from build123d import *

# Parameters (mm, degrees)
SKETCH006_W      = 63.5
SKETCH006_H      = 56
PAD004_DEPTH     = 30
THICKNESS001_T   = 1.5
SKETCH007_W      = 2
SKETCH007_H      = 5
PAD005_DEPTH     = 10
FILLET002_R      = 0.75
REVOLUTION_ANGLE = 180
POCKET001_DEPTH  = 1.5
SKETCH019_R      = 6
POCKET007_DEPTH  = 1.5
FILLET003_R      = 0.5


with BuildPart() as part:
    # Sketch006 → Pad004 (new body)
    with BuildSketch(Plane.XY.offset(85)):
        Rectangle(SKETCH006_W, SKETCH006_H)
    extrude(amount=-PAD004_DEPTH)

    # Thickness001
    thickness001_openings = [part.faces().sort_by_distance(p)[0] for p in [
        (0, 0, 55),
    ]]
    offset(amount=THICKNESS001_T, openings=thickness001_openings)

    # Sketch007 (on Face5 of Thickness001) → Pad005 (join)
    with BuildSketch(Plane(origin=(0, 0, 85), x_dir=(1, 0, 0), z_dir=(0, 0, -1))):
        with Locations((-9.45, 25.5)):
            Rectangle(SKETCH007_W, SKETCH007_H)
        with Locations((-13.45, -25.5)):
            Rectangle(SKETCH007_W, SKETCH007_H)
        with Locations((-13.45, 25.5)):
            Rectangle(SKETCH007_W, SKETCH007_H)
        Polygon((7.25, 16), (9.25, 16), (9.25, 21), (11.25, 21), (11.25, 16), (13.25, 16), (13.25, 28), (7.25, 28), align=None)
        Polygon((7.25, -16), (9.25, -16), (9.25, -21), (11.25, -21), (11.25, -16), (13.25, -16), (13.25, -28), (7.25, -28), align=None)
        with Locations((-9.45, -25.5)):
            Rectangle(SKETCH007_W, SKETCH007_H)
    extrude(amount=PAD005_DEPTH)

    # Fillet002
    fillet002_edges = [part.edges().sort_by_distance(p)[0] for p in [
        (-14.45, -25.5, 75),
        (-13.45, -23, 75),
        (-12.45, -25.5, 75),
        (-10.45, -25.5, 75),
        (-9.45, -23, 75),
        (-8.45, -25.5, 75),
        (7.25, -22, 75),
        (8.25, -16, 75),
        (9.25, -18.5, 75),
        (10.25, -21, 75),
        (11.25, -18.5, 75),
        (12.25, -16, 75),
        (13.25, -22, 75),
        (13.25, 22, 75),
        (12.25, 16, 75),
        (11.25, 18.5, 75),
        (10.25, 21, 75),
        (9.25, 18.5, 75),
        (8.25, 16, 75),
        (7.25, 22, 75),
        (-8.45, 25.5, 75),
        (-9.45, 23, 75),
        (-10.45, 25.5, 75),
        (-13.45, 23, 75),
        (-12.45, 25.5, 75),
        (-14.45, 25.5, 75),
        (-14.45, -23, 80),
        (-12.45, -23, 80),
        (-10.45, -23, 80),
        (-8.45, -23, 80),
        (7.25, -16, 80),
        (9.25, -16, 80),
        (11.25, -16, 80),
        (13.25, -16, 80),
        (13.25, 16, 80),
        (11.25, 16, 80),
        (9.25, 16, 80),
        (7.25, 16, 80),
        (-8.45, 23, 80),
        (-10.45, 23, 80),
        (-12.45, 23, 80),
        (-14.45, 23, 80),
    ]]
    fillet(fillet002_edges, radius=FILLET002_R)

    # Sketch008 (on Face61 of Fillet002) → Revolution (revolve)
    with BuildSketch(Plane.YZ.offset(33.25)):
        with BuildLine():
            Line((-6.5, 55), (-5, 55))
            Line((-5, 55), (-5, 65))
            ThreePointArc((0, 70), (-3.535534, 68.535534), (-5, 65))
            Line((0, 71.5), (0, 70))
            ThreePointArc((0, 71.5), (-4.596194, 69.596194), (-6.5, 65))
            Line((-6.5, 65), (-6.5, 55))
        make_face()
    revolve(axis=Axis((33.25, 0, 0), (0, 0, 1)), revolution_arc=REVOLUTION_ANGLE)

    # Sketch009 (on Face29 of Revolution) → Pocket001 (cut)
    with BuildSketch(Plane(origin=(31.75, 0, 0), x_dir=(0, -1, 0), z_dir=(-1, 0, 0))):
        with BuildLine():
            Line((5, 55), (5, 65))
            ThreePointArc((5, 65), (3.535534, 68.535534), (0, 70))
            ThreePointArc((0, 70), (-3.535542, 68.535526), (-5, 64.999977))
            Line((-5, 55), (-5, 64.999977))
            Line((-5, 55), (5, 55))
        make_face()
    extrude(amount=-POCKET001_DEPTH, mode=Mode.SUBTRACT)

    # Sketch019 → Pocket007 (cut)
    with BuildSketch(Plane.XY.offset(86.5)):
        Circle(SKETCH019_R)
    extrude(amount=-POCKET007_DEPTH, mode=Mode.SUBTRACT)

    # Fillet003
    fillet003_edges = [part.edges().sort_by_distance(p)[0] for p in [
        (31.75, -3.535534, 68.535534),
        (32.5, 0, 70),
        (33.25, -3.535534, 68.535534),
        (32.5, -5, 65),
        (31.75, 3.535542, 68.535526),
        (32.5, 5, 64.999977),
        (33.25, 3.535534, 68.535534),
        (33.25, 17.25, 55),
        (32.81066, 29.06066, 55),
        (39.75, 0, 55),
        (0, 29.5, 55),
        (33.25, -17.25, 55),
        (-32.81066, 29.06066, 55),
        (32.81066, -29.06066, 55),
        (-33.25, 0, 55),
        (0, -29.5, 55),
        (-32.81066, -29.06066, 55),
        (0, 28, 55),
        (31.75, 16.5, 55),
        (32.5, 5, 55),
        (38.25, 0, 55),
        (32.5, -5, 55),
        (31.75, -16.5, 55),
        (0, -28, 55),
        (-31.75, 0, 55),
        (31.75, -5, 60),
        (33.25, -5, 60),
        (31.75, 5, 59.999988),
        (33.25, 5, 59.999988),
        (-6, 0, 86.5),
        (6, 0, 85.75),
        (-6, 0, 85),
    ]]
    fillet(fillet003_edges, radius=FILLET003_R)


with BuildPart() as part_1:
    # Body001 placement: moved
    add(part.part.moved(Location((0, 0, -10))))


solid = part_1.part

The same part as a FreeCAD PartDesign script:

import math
import FreeCAD as App
import Part
import Sketcher


def edges_at(feature, points):
    """Names of the edges that pass closest to the given points."""
    edges = feature.Shape.Edges
    near = lambda p: min(range(len(edges)), key=lambda i: edges[i].distToShape(Part.Vertex(*p))[0])
    return sorted({f"Edge{near(p) + 1}" for p in points})


def faces_at(feature, points):
    """Names of the faces that lie closest to the given points."""
    faces = feature.Shape.Faces
    near = lambda p: min(range(len(faces)), key=lambda i: faces[i].distToShape(Part.Vertex(*p))[0])
    return sorted({f"Face{near(p) + 1}" for p in points})


def add_polygon(sketch, points):
    """Adds a closed chain of lines whose ends are joined by coincident constraints."""
    first, n = sketch.GeometryCount, len(points)
    for a, b in zip(points, points[1:] + points[:1]):
        sketch.addGeometry(Part.LineSegment(App.Vector(*a, 0), App.Vector(*b, 0)), False)
    for i in range(n):
        sketch.addConstraint(Sketcher.Constraint("Coincident", first + i, 2, first + (i + 1) % n, 1))

doc = App.newDocument("Part")
body = doc.addObject("PartDesign::Body", "Body")

sketch1 = body.newObject("Sketcher::SketchObject", "Sketch")
sketch1.AttachmentSupport = (doc.getObject("XY_Plane"), [""])
sketch1.MapMode = "FlatFace"
sketch1.AttachmentOffset = App.Placement(App.Vector(0, 0, 85), App.Rotation())
add_polygon(sketch1, [(-31.75, 28), (-31.75, -28), (31.75, -28), (31.75, 28)])
sketch1.addConstraint([
    Sketcher.Constraint("Vertical", 0),
    Sketcher.Constraint("Horizontal", 1),
    Sketcher.Constraint("Vertical", 2),
    Sketcher.Constraint("Horizontal", 3),
    Sketcher.Constraint("Symmetric", 0, 2, 2, 2, -1, 1),
    Sketcher.Constraint("DistanceY", 0, 2, 0, 1, 56.0),
    Sketcher.Constraint("DistanceX", 1, 1, 1, 2, 63.5),
])
pad1 = body.newObject("PartDesign::Pad", "Pad")
pad1.Profile = sketch1
pad1.Length = 30
pad1.Reversed = True
doc.recompute()

thickness = body.newObject("PartDesign::Thickness", "Thickness")
thickness.Base = (pad1, faces_at(pad1, [(0, 0, 55)]))
thickness.Value = 1.5
thickness.Reversed = False
thickness.Join = "Arc"

sketch2 = body.newObject("Sketcher::SketchObject", "Sketch001")
sketch2.AttachmentSupport = (doc.getObject("XY_Plane"), [""])
sketch2.MapMode = "FlatFace"
sketch2.AttachmentOffset = App.Placement(App.Vector(0, 0, 85), App.Rotation())
add_polygon(sketch2, [(-10.45, -28), (-10.45, -23), (-8.45, -23), (-8.45, -28)])
add_polygon(sketch2, [(-14.45, 23), (-14.45, 28), (-12.45, 28), (-12.45, 23)])
add_polygon(sketch2, [(-14.45, -28), (-14.45, -23), (-12.45, -23), (-12.45, -28)])
add_polygon(sketch2, [(7.25, -16), (9.25, -16), (9.25, -21), (11.25, -21), (11.25, -16), (13.25, -16), (13.25, -28), (7.25, -28)])
add_polygon(sketch2, [(9.25, 16), (7.25, 16), (7.25, 28), (13.25, 28), (13.25, 16), (11.25, 16), (11.25, 21), (9.25, 21)])
add_polygon(sketch2, [(-10.45, 23), (-10.45, 28), (-8.45, 28), (-8.45, 23)])
sketch2.addConstraint([
    Sketcher.Constraint("Vertical", 0),
    Sketcher.Constraint("Horizontal", 1),
    Sketcher.Constraint("Vertical", 2),
    Sketcher.Constraint("Horizontal", 3),
    Sketcher.Constraint("Vertical", 4),
    Sketcher.Constraint("Horizontal", 5),
    Sketcher.Constraint("Vertical", 6),
    Sketcher.Constraint("Horizontal", 7),
    Sketcher.Constraint("Vertical", 8),
    Sketcher.Constraint("Horizontal", 9),
    Sketcher.Constraint("Vertical", 10),
    Sketcher.Constraint("Horizontal", 11),
    Sketcher.Constraint("Horizontal", 12),
    Sketcher.Constraint("Vertical", 13),
    Sketcher.Constraint("Horizontal", 14),
    Sketcher.Constraint("Vertical", 15),
    Sketcher.Constraint("Horizontal", 16),
    Sketcher.Constraint("Vertical", 17),
    Sketcher.Constraint("Horizontal", 18),
    Sketcher.Constraint("Vertical", 19),
    Sketcher.Constraint("Horizontal", 20),
    Sketcher.Constraint("Vertical", 21),
    Sketcher.Constraint("Horizontal", 22),
    Sketcher.Constraint("Vertical", 23),
    Sketcher.Constraint("Horizontal", 24),
    Sketcher.Constraint("Vertical", 25),
    Sketcher.Constraint("Horizontal", 26),
    Sketcher.Constraint("Vertical", 27),
    Sketcher.Constraint("Vertical", 28),
    Sketcher.Constraint("Horizontal", 29),
    Sketcher.Constraint("Vertical", 30),
    Sketcher.Constraint("Horizontal", 31),
    Sketcher.Constraint("Symmetric", 7, 2, 8, 2, -1),
    Sketcher.Constraint("Symmetric", 5, 2, 10, 2, -1),
    Sketcher.Constraint("Symmetric", 19, 2, 20, 2, -1),
    Sketcher.Constraint("Symmetric", 17, 2, 22, 2, -1),
    Sketcher.Constraint("Symmetric", 15, 2, 24, 2, -1),
    Sketcher.Constraint("Symmetric", 13, 2, 26, 2, -1),
    Sketcher.Constraint("Symmetric", 3, 2, 28, 2, -1),
    Sketcher.Constraint("Symmetric", 1, 2, 30, 2, -1),
    Sketcher.Constraint("Horizontal", 1, 2, 8, 2),
    Sketcher.Constraint("Horizontal", 3, 2, 10, 2),
    Sketcher.Constraint("Horizontal", 12, 2, 15, 2),
    Sketcher.Constraint("Horizontal", 11, 2, 17, 2),
    Sketcher.Constraint("Equal", 3, 5),
    Sketcher.Constraint("Equal", 11, 12),
    Sketcher.Constraint("Equal", 12, 14),
    Sketcher.Constraint("Equal", 14, 16),
    Sketcher.Constraint("Equal", 10, 13),
    Sketcher.Constraint("DistanceX", 1, 1, 1, 2, 2.0),
    Sketcher.Constraint("DistanceY", 0, 1, 0, 2, 5.0),
    Sketcher.Constraint("DistanceY", 17, 2, 17, 1, 12.0),
    Sketcher.Constraint("DistanceY", 0, 2, -1, 1, 23.0),
    Sketcher.Constraint("DistanceX", 4, 2, 0, 2, 4.0),
    Sketcher.Constraint("DistanceX", 1, 2, 12, 2, 17.7),
    Sketcher.Constraint("DistanceX", 0, 2, -1, 1, 10.45),
])
pad2 = body.newObject("PartDesign::Pad", "Pad001")
pad2.Profile = sketch2
pad2.Length = 10
pad2.Reversed = True
doc.recompute()

fillet = body.newObject("PartDesign::Fillet", "Fillet")
fillet.Base = (pad2, edges_at(pad2, [
    (-14.45, -25.5, 75),
    (-13.45, -23, 75),
    (-12.45, -25.5, 75),
    (-10.45, -25.5, 75),
    (-9.45, -23, 75),
    (-8.45, -25.5, 75),
    (7.25, -22, 75),
    (8.25, -16, 75),
    (9.25, -18.5, 75),
    (10.25, -21, 75),
    (11.25, -18.5, 75),
    (12.25, -16, 75),
    (13.25, -22, 75),
    (13.25, 22, 75),
    (12.25, 16, 75),
    (11.25, 18.5, 75),
    (10.25, 21, 75),
    (9.25, 18.5, 75),
    (8.25, 16, 75),
    (7.25, 22, 75),
    (-8.45, 25.5, 75),
    (-9.45, 23, 75),
    (-10.45, 25.5, 75),
    (-13.45, 23, 75),
    (-12.45, 25.5, 75),
    (-14.45, 25.5, 75),
    (-14.45, -23, 80),
    (-12.45, -23, 80),
    (-10.45, -23, 80),
    (-8.45, -23, 80),
    (7.25, -16, 80),
    (9.25, -16, 80),
    (11.25, -16, 80),
    (13.25, -16, 80),
    (13.25, 16, 80),
    (11.25, 16, 80),
    (9.25, 16, 80),
    (7.25, 16, 80),
    (-8.45, 23, 80),
    (-10.45, 23, 80),
    (-12.45, 23, 80),
    (-14.45, 23, 80),
]))
fillet.Radius = 0.75

sketch3 = body.newObject("Sketcher::SketchObject", "Sketch002")
sketch3.AttachmentSupport = (doc.getObject("YZ_Plane"), [""])
sketch3.MapMode = "FlatFace"
sketch3.AttachmentOffset = App.Placement(App.Vector(0, 0, 33.25), App.Rotation())
sketch3.addGeometry([
    Part.LineSegment(App.Vector(-6.5, 55, 0), App.Vector(-5, 55, 0)),
    Part.LineSegment(App.Vector(-5, 55, 0), App.Vector(-5, 65, 0)),
    Part.ArcOfCircle(Part.Circle(App.Vector(0, 65, 0), App.Vector(0, 0, 1), 5), math.radians(89.999996), math.radians(180.000004)),
    Part.LineSegment(App.Vector(0, 70, 0), App.Vector(0, 71.5, 0)),
    Part.ArcOfCircle(Part.Circle(App.Vector(0, 65, 0), App.Vector(0, 0, 1), 6.5), math.radians(90.000002), math.radians(179.999998)),
    Part.LineSegment(App.Vector(-6.5, 65, 0), App.Vector(-6.5, 55, 0)),
], False)
sketch3.addConstraint([
    Sketcher.Constraint("Coincident", 0, 2, 1, 1),
    Sketcher.Constraint("Tangent", 1, 2, 2, 2),
    Sketcher.Constraint("Coincident", 2, 1, 3, 1),
    Sketcher.Constraint("Coincident", 3, 2, 4, 1),
    Sketcher.Constraint("Tangent", 4, 2, 5, 1),
    Sketcher.Constraint("Coincident", 5, 2, 0, 1),
    Sketcher.Constraint("Horizontal", 0),
    Sketcher.Constraint("Vertical", 1),
    Sketcher.Constraint("Vertical", 3),
    Sketcher.Constraint("Vertical", 5),
    Sketcher.Constraint("Coincident", 4, 3, 2, 3),
    Sketcher.Constraint("PointOnObject", 2, 3, -2),
    Sketcher.Constraint("PointOnObject", 2, 1, -2),
    Sketcher.Constraint("Radius", 2, 5.0),
    Sketcher.Constraint("Radius", 4, 6.5),
    Sketcher.Constraint("DistanceY", 1, 1, 1, 2, 10.0),
    Sketcher.Constraint("DistanceY", -1, 1, 2, 3, 65.0),
])
revolution = body.newObject("PartDesign::Revolution", "Revolution")
revolution.Profile = sketch3
revolution.ReferenceAxis = (sketch3, ["V_Axis"])
revolution.Angle = 180

sketch4 = body.newObject("Sketcher::SketchObject", "Sketch003")
sketch4.AttachmentSupport = (doc.getObject("YZ_Plane"), [""])
sketch4.MapMode = "FlatFace"
sketch4.AttachmentOffset = App.Placement(App.Vector(0, 0, 31.75), App.Rotation())
sketch4.addGeometry([
    Part.LineSegment(App.Vector(-5, 55, 0), App.Vector(-5, 65, 0)),
    Part.ArcOfCircle(Part.Circle(App.Vector(0, 65, 0), App.Vector(0, 0, 1), 5), math.radians(89.999996), math.radians(180.000004)),
    Part.ArcOfCircle(Part.Circle(App.Vector(0, 65, 0), App.Vector(0, 0, 1), 5), math.radians(-0.000267), math.radians(90.000004)),
    Part.LineSegment(App.Vector(5, 64.999977, 0), App.Vector(5, 55, 0)),
    Part.LineSegment(App.Vector(5, 55, 0), App.Vector(-5, 55, 0)),
], False)
sketch4.addConstraint([
    Sketcher.Constraint("Tangent", 0, 2, 1, 2),
    Sketcher.Constraint("Tangent", 1, 1, 2, 2),
    Sketcher.Constraint("Coincident", 2, 1, 3, 1),
    Sketcher.Constraint("Coincident", 3, 2, 4, 1),
    Sketcher.Constraint("Coincident", 4, 2, 0, 1),
    Sketcher.Constraint("Vertical", 0),
    Sketcher.Constraint("Vertical", 3),
    Sketcher.Constraint("Horizontal", 4),
    Sketcher.Constraint("Equal", 1, 2),
    Sketcher.Constraint("PointOnObject", 1, 3, -2),
    Sketcher.Constraint("PointOnObject", 1, 1, -2),
    Sketcher.Constraint("Equal", 4, 0),
    Sketcher.Constraint("Radius", 1, 5.0),
    Sketcher.Constraint("DistanceY", -1, 1, 1, 3, 65.0),
    Sketcher.Constraint("DistanceY", 3, 2, 3, 1, 9.999977),
])
pocket1 = body.newObject("PartDesign::Pocket", "Pocket")
pocket1.Profile = sketch4
pocket1.Length = 1.5
pocket1.Reversed = True

sketch5 = body.newObject("Sketcher::SketchObject", "Sketch004")
sketch5.AttachmentSupport = (doc.getObject("XY_Plane"), [""])
sketch5.MapMode = "FlatFace"
sketch5.AttachmentOffset = App.Placement(App.Vector(0, 0, 86.5), App.Rotation())
sketch5.addGeometry(Part.Circle(App.Vector(0, 0, 0), App.Vector(0, 0, 1), 6), False)
sketch5.addConstraint([
    Sketcher.Constraint("Coincident", 0, 3, -1, 1),
    Sketcher.Constraint("Diameter", 0, 12.0),
])
pocket2 = body.newObject("PartDesign::Pocket", "Pocket001")
pocket2.Profile = sketch5
pocket2.Length = 1.5
doc.recompute()

fillet2 = body.newObject("PartDesign::Fillet", "Fillet001")
fillet2.Base = (pocket2, edges_at(pocket2, [
    (31.75, -3.536, 68.536),
    (32.5, 0, 70),
    (33.25, -3.536, 68.536),
    (32.5, -5, 65),
    (31.75, 3.536, 68.536),
    (32.5, 5, 65),
    (33.25, 3.536, 68.536),
    (33.25, 17.25, 55),
    (32.811, 29.061, 55),
    (39.75, 0, 55),
    (0, 29.5, 55),
    (33.25, -17.25, 55),
    (-32.811, 29.061, 55),
    (32.811, -29.061, 55),
    (-33.25, 0, 55),
    (0, -29.5, 55),
    (-32.811, -29.061, 55),
    (0, 28, 55),
    (31.75, 16.5, 55),
    (32.5, 5, 55),
    (38.25, 0, 55),
    (32.5, -5, 55),
    (31.75, -16.5, 55),
    (0, -28, 55),
    (-31.75, 0, 55),
    (31.75, -5, 60),
    (33.25, -5, 60),
    (31.75, 5, 60),
    (33.25, 5, 60),
    (-6, 0, 86.5),
    (6, 0, 85.75),
    (-6, 0, 85),
]))
fillet2.Radius = 0.5
body2 = doc.addObject("PartDesign::Body", "Body001")
doc.recompute()

body.Placement = App.Placement(App.Vector(0, 0, -10), App.Rotation(App.Vector(0, 0, 1), 0))
boolean = body2.newObject("PartDesign::Boolean", "Boolean")
boolean.Type = "Fuse"
boolean.addObjects([body])

doc.recompute()
